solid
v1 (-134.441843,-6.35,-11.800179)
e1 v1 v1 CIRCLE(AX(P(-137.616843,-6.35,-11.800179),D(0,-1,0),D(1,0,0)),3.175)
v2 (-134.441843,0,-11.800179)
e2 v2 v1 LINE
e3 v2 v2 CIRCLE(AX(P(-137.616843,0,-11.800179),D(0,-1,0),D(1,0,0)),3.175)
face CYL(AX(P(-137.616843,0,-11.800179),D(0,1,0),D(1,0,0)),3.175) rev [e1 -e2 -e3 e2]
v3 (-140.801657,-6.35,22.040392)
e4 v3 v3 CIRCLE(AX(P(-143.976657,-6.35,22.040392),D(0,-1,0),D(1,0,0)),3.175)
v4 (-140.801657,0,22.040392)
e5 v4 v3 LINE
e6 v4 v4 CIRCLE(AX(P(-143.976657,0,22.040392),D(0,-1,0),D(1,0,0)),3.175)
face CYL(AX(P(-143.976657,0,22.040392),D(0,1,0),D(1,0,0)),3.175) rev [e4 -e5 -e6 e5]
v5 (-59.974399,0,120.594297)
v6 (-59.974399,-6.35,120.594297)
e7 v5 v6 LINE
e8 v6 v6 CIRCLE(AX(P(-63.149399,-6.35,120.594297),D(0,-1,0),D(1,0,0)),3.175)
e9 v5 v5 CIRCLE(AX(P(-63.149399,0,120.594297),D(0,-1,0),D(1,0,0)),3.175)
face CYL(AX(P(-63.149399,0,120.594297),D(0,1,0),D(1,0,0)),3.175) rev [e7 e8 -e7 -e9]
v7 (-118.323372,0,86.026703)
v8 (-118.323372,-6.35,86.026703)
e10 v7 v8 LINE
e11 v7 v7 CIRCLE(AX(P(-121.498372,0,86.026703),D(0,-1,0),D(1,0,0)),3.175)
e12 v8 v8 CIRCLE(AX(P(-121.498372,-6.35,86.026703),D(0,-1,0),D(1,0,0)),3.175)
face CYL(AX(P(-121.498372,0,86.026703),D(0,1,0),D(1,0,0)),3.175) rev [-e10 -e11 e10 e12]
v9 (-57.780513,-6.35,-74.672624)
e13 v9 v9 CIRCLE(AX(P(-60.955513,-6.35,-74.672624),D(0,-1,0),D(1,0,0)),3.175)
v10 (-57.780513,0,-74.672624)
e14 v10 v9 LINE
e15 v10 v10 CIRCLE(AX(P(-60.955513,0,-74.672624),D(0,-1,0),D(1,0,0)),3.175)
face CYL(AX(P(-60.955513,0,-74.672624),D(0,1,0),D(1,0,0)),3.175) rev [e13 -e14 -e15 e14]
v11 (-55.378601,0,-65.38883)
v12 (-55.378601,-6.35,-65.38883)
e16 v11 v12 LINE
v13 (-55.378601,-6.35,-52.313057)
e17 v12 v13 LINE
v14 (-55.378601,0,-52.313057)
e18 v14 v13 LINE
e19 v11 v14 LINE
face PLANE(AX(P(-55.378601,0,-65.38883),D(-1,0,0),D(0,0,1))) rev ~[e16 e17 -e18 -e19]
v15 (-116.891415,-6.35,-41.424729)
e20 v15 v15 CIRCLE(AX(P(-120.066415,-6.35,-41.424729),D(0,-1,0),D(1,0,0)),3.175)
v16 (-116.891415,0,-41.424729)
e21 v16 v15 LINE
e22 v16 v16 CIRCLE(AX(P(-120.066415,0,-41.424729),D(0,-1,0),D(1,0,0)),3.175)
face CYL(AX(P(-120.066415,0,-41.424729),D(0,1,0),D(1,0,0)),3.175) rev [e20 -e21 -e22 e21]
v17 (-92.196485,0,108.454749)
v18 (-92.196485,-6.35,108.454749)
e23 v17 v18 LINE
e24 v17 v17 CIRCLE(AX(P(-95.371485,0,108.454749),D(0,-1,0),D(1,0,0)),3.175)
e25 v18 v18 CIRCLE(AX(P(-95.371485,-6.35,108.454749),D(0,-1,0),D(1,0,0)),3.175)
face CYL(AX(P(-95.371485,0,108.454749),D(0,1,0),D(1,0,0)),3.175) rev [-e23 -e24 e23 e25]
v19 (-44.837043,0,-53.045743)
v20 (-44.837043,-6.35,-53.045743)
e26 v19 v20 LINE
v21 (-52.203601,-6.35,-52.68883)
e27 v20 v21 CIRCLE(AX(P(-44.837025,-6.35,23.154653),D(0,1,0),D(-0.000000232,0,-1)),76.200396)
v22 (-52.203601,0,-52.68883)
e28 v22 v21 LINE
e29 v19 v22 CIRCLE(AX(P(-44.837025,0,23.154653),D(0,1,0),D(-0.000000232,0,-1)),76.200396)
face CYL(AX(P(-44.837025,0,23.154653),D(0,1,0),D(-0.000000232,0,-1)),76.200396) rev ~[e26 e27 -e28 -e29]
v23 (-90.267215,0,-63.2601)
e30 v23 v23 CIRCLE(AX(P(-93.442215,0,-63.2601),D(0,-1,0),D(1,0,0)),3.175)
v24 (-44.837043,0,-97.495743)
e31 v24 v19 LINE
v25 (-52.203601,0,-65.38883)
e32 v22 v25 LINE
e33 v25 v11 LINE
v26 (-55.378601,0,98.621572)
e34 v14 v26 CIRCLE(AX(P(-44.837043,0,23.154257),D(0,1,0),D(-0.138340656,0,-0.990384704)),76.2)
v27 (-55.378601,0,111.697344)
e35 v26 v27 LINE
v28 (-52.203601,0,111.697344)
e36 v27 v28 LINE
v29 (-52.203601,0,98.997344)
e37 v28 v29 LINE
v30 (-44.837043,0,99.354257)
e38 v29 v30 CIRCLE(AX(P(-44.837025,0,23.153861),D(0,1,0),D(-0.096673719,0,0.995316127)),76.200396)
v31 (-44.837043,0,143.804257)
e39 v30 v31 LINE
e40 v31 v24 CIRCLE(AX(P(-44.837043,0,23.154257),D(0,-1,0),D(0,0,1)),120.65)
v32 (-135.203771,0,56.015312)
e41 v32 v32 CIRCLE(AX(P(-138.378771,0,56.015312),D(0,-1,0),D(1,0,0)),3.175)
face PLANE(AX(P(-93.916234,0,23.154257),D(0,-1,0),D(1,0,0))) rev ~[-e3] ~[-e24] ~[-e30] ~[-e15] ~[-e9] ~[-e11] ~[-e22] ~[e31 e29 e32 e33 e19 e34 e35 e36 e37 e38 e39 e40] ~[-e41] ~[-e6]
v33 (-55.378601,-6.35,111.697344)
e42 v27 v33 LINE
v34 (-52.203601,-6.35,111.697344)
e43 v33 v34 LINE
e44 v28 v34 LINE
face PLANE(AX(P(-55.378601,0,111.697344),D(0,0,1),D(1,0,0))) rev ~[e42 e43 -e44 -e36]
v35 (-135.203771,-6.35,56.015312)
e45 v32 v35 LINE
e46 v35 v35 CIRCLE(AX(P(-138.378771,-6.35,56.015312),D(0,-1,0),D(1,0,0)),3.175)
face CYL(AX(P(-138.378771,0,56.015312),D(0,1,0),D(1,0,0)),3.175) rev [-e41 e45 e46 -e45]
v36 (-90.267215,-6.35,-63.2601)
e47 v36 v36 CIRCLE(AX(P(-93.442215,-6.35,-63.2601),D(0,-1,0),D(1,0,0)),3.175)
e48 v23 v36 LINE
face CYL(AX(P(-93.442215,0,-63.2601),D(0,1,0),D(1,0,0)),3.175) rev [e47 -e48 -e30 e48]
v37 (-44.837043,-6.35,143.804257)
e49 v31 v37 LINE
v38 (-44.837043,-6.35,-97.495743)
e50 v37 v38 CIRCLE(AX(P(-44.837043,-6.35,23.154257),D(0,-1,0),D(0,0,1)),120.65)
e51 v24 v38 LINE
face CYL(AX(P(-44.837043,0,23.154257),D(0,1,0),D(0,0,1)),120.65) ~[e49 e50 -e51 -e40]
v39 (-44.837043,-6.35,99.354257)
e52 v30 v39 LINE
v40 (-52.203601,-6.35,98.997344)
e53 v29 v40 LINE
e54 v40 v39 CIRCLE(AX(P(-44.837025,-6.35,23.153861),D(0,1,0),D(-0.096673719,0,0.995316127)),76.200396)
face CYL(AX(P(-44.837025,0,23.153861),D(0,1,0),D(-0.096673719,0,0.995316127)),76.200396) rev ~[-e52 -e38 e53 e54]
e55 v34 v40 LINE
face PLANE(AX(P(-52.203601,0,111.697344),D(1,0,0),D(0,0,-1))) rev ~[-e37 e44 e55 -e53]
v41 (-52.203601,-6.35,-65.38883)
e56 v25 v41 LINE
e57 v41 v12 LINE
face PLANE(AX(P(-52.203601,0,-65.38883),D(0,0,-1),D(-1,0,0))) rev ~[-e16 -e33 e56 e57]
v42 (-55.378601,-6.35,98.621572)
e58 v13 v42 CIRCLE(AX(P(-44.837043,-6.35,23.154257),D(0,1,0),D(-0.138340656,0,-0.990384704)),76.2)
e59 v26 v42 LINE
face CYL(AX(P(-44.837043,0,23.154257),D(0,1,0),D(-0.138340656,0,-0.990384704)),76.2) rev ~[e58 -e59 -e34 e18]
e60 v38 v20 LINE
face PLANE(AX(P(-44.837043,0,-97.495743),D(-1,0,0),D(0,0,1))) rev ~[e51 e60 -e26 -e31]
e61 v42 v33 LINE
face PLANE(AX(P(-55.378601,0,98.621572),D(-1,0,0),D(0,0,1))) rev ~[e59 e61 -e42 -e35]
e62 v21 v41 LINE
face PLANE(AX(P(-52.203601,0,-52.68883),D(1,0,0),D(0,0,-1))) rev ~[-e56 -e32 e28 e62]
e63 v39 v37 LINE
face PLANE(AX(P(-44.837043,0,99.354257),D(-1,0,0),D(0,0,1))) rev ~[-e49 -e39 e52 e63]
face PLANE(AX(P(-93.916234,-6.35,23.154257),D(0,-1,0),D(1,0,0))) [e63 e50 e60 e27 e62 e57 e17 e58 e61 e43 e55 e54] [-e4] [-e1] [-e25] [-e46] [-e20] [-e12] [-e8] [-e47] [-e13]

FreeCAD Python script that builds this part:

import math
import FreeCAD as App
import Part
import Sketcher
Q = App.Units.Quantity

doc = App.newDocument("Part")
params = doc.addObject("Spreadsheet::Sheet", "Params")
for row, (alias, value) in enumerate([
    ("sketch1_radius", "3 in"),
    ("sketch1_diameter", "0.25 in"),
    ("sketch1_radius2", "4.75 in"),
    ("sketch1_height", "0.5 in"),
    ("sketch1_height2", "1.75 in"),
    ("pad1_length", "0.25 in"),
], start=1):
    params.set(f"A{row}", alias)
    params.set(f"B{row}", "=" + value)
    params.setAlias(f"B{row}", alias)

body = doc.addObject("PartDesign::Body", "Body")

sketch1 = body.newObject("Sketcher::SketchObject", "Sketch")
sketch1.AttachmentSupport = (doc.getObject("XZ_Plane"), [""])
sketch1.MapMode = "FlatFace"
sketch1.addGeometry([
    Part.LineSegment(App.Vector(-44.8, 99.4, 0), App.Vector(-44.8, 143.8, 0)),
    Part.ArcOfCircle(Part.Circle(App.Vector(-44.8, 23.2, 0), App.Vector(0, 0, 1), 120.7), math.radians(90), math.radians(270)),
    Part.LineSegment(App.Vector(-44.8, -97.5, 0), App.Vector(-44.8, -53, 0)),
    Part.ArcOfCircle(Part.Circle(App.Vector(-44.8, 23.2, 0), App.Vector(0, 0, 1), 76.2), math.radians(-95.55), math.radians(-90)),
    Part.LineSegment(App.Vector(-52.2, -52.7, 0), App.Vector(-52.2, -65.4, 0)),
    Part.LineSegment(App.Vector(-52.2, -65.4, 0), App.Vector(-55.4, -65.4, 0)),
    Part.LineSegment(App.Vector(-55.4, -65.4, 0), App.Vector(-55.4, -52.3, 0)),
    Part.ArcOfCircle(Part.Circle(App.Vector(-44.8, 23.2, 0), App.Vector(0, 0, 1), 76.2), math.radians(98), math.radians(262)),
    Part.LineSegment(App.Vector(-55.4, 98.6, 0), App.Vector(-55.4, 111.7, 0)),
    Part.LineSegment(App.Vector(-55.4, 111.7, 0), App.Vector(-52.2, 111.7, 0)),
    Part.LineSegment(App.Vector(-52.2, 111.7, 0), App.Vector(-52.2, 99, 0)),
    Part.ArcOfCircle(Part.Circle(App.Vector(-44.8, 23.2, 0), App.Vector(0, 0, 1), 76.2), math.radians(90), math.radians(95.55)),
    Part.Circle(App.Vector(-120.1, -41.4, 0), App.Vector(0, 0, 1), 3.2),
    Part.Circle(App.Vector(-137.6, -11.8, 0), App.Vector(0, 0, 1), 3.2),
    Part.Circle(App.Vector(-144, 22, 0), App.Vector(0, 0, 1), 3.2),
    Part.Circle(App.Vector(-93.4, -63.3, 0), App.Vector(0, 0, 1), 3.2),
    Part.Circle(App.Vector(-61, -74.7, 0), App.Vector(0, 0, 1), 3.2),
    Part.Circle(App.Vector(-138.4, 56, 0), App.Vector(0, 0, 1), 3.2),
    Part.Circle(App.Vector(-121.5, 86, 0), App.Vector(0, 0, 1), 3.2),
    Part.Circle(App.Vector(-95.4, 108.5, 0), App.Vector(0, 0, 1), 3.2),
    Part.Circle(App.Vector(-63.1, 120.6, 0), App.Vector(0, 0, 1), 3.2),
], False)
sketch1.addConstraint([
    Sketcher.Constraint("Coincident", 0, 2, 1, 1),
    Sketcher.Constraint("Coincident", 1, 2, 2, 1),
    Sketcher.Constraint("Coincident", 2, 2, 3, 2),
    Sketcher.Constraint("Coincident", 3, 1, 4, 1),
    Sketcher.Constraint("Coincident", 4, 2, 5, 1),
    Sketcher.Constraint("Coincident", 5, 2, 6, 1),
    Sketcher.Constraint("Coincident", 6, 2, 7, 2),
    Sketcher.Constraint("Coincident", 7, 1, 8, 1),
    Sketcher.Constraint("Coincident", 8, 2, 9, 1),
    Sketcher.Constraint("Coincident", 9, 2, 10, 1),
    Sketcher.Constraint("Coincident", 10, 2, 11, 2),
    Sketcher.Constraint("Coincident", 11, 1, 0, 1),
    Sketcher.Constraint("Vertical", 0),
    Sketcher.Constraint("Vertical", 2),
    Sketcher.Constraint("Vertical", 4),
    Sketcher.Constraint("Horizontal", 5),
    Sketcher.Constraint("Vertical", 6),
    Sketcher.Constraint("Vertical", 8),
    Sketcher.Constraint("Horizontal", 9),
    Sketcher.Constraint("Vertical", 10),
    Sketcher.Constraint("Coincident", 7, 3, 1, 3),
    Sketcher.Constraint("Equal", 3, 11),
    Sketcher.Constraint("Equal", 12, 13),
    Sketcher.Constraint("Equal", 13, 14),
    Sketcher.Constraint("Equal", 14, 15),
    Sketcher.Constraint("Equal", 15, 16),
    Sketcher.Constraint("Equal", 16, 17),
    Sketcher.Constraint("Equal", 17, 18),
    Sketcher.Constraint("Equal", 18, 19),
    Sketcher.Constraint("Equal", 19, 20),
    Sketcher.Constraint("Vertical", 3, 3, 11, 3),
    Sketcher.Constraint("Vertical", 7, 3, 0, 2),
    Sketcher.Constraint("Vertical", 0, 2, 1, 2),
    Sketcher.Constraint("Vertical", 6, 2, 7, 1),
    Sketcher.Constraint("Vertical", 4, 2, 9, 2),
    Sketcher.Constraint("Equal", 0, 2),
    Sketcher.Constraint("Equal", 6, 8),
    Sketcher.Constraint("Radius", 7, Q("3 in")),
    Sketcher.Constraint("Diameter", 12, Q("0.25 in")),
    Sketcher.Constraint("Radius", 1, Q("4.75 in")),
    Sketcher.Constraint("DistanceY", 4, 2, 4, 1, Q("0.5 in")),
    Sketcher.Constraint("DistanceY", 0, 1, 0, 2, Q("1.75 in")),
    Sketcher.Constraint("DistanceX", 5, 2, 5, 1, Q("0.125 in")),
    Sketcher.Constraint("Radius", 3, 76.200396),
    Sketcher.Constraint("DistanceY", 15, 3, -1, 1, 63.2601),
    Sketcher.Constraint("DistanceX", 20, 3, -1, 1, 63.149399),
    Sketcher.Constraint("DistanceX", 3, 1, -1, 1, 52.203601),
    Sketcher.Constraint("DistanceX", 13, 3, 1, 3, 92.7798),
    Sketcher.Constraint("DistanceX", 12, 3, 15, 3, 26.6242),
    Sketcher.Constraint("DistanceX", 17, 3, 18, 3, 16.880399),
    Sketcher.Constraint("DistanceY", 3, 1, 12, 3, 11.264101),
    Sketcher.Constraint("DistanceY", 6, 1, 6, 2, 13.075773),
    Sketcher.Constraint("DistanceY", -1, 1, 11, 3, 23.153861),
    Sketcher.Constraint("DistanceY", 12, 3, -1, 1, 41.424729),
    Sketcher.Constraint("DistanceY", 13, 3, -1, 1, 11.800179),
    Sketcher.Constraint("DistanceX", 17, 3, -1, 1, 138.378771),
    Sketcher.Constraint("DistanceY", -1, 1, 19, 3, 108.454749),
    Sketcher.Constraint("DistanceX", 12, 3, 11, 3, 75.22939),
    Sketcher.Constraint("DistanceY", 13, 3, 14, 3, 33.840571),
    Sketcher.Constraint("DistanceX", 14, 3, 12, 3, 23.910242),
    Sketcher.Constraint("DistanceX", 16, 3, 1, 3, 16.11847),
    Sketcher.Constraint("DistanceY", 16, 3, 1, 3, 97.826881),
    Sketcher.Constraint("DistanceY", 14, 3, 17, 3, 33.97492),
    Sketcher.Constraint("DistanceY", 17, 3, 18, 3, 30.011391),
    Sketcher.Constraint("DistanceX", 19, 3, 3, 3, 50.53446),
    Sketcher.Constraint("DistanceY", 7, 3, 20, 3, 97.440039),
])
sketch1.setExpression("Constraints[37]", "Params.sketch1_radius")
sketch1.setExpression("Constraints[38]", "Params.sketch1_diameter")
sketch1.setExpression("Constraints[39]", "Params.sketch1_radius2")
sketch1.setExpression("Constraints[40]", "Params.sketch1_height")
sketch1.setExpression("Constraints[41]", "Params.sketch1_height2")
pad1 = body.newObject("PartDesign::Pad", "Pad")
pad1.Profile = sketch1
pad1.setExpression("Length", "Params.pad1_length")

doc.recompute()
